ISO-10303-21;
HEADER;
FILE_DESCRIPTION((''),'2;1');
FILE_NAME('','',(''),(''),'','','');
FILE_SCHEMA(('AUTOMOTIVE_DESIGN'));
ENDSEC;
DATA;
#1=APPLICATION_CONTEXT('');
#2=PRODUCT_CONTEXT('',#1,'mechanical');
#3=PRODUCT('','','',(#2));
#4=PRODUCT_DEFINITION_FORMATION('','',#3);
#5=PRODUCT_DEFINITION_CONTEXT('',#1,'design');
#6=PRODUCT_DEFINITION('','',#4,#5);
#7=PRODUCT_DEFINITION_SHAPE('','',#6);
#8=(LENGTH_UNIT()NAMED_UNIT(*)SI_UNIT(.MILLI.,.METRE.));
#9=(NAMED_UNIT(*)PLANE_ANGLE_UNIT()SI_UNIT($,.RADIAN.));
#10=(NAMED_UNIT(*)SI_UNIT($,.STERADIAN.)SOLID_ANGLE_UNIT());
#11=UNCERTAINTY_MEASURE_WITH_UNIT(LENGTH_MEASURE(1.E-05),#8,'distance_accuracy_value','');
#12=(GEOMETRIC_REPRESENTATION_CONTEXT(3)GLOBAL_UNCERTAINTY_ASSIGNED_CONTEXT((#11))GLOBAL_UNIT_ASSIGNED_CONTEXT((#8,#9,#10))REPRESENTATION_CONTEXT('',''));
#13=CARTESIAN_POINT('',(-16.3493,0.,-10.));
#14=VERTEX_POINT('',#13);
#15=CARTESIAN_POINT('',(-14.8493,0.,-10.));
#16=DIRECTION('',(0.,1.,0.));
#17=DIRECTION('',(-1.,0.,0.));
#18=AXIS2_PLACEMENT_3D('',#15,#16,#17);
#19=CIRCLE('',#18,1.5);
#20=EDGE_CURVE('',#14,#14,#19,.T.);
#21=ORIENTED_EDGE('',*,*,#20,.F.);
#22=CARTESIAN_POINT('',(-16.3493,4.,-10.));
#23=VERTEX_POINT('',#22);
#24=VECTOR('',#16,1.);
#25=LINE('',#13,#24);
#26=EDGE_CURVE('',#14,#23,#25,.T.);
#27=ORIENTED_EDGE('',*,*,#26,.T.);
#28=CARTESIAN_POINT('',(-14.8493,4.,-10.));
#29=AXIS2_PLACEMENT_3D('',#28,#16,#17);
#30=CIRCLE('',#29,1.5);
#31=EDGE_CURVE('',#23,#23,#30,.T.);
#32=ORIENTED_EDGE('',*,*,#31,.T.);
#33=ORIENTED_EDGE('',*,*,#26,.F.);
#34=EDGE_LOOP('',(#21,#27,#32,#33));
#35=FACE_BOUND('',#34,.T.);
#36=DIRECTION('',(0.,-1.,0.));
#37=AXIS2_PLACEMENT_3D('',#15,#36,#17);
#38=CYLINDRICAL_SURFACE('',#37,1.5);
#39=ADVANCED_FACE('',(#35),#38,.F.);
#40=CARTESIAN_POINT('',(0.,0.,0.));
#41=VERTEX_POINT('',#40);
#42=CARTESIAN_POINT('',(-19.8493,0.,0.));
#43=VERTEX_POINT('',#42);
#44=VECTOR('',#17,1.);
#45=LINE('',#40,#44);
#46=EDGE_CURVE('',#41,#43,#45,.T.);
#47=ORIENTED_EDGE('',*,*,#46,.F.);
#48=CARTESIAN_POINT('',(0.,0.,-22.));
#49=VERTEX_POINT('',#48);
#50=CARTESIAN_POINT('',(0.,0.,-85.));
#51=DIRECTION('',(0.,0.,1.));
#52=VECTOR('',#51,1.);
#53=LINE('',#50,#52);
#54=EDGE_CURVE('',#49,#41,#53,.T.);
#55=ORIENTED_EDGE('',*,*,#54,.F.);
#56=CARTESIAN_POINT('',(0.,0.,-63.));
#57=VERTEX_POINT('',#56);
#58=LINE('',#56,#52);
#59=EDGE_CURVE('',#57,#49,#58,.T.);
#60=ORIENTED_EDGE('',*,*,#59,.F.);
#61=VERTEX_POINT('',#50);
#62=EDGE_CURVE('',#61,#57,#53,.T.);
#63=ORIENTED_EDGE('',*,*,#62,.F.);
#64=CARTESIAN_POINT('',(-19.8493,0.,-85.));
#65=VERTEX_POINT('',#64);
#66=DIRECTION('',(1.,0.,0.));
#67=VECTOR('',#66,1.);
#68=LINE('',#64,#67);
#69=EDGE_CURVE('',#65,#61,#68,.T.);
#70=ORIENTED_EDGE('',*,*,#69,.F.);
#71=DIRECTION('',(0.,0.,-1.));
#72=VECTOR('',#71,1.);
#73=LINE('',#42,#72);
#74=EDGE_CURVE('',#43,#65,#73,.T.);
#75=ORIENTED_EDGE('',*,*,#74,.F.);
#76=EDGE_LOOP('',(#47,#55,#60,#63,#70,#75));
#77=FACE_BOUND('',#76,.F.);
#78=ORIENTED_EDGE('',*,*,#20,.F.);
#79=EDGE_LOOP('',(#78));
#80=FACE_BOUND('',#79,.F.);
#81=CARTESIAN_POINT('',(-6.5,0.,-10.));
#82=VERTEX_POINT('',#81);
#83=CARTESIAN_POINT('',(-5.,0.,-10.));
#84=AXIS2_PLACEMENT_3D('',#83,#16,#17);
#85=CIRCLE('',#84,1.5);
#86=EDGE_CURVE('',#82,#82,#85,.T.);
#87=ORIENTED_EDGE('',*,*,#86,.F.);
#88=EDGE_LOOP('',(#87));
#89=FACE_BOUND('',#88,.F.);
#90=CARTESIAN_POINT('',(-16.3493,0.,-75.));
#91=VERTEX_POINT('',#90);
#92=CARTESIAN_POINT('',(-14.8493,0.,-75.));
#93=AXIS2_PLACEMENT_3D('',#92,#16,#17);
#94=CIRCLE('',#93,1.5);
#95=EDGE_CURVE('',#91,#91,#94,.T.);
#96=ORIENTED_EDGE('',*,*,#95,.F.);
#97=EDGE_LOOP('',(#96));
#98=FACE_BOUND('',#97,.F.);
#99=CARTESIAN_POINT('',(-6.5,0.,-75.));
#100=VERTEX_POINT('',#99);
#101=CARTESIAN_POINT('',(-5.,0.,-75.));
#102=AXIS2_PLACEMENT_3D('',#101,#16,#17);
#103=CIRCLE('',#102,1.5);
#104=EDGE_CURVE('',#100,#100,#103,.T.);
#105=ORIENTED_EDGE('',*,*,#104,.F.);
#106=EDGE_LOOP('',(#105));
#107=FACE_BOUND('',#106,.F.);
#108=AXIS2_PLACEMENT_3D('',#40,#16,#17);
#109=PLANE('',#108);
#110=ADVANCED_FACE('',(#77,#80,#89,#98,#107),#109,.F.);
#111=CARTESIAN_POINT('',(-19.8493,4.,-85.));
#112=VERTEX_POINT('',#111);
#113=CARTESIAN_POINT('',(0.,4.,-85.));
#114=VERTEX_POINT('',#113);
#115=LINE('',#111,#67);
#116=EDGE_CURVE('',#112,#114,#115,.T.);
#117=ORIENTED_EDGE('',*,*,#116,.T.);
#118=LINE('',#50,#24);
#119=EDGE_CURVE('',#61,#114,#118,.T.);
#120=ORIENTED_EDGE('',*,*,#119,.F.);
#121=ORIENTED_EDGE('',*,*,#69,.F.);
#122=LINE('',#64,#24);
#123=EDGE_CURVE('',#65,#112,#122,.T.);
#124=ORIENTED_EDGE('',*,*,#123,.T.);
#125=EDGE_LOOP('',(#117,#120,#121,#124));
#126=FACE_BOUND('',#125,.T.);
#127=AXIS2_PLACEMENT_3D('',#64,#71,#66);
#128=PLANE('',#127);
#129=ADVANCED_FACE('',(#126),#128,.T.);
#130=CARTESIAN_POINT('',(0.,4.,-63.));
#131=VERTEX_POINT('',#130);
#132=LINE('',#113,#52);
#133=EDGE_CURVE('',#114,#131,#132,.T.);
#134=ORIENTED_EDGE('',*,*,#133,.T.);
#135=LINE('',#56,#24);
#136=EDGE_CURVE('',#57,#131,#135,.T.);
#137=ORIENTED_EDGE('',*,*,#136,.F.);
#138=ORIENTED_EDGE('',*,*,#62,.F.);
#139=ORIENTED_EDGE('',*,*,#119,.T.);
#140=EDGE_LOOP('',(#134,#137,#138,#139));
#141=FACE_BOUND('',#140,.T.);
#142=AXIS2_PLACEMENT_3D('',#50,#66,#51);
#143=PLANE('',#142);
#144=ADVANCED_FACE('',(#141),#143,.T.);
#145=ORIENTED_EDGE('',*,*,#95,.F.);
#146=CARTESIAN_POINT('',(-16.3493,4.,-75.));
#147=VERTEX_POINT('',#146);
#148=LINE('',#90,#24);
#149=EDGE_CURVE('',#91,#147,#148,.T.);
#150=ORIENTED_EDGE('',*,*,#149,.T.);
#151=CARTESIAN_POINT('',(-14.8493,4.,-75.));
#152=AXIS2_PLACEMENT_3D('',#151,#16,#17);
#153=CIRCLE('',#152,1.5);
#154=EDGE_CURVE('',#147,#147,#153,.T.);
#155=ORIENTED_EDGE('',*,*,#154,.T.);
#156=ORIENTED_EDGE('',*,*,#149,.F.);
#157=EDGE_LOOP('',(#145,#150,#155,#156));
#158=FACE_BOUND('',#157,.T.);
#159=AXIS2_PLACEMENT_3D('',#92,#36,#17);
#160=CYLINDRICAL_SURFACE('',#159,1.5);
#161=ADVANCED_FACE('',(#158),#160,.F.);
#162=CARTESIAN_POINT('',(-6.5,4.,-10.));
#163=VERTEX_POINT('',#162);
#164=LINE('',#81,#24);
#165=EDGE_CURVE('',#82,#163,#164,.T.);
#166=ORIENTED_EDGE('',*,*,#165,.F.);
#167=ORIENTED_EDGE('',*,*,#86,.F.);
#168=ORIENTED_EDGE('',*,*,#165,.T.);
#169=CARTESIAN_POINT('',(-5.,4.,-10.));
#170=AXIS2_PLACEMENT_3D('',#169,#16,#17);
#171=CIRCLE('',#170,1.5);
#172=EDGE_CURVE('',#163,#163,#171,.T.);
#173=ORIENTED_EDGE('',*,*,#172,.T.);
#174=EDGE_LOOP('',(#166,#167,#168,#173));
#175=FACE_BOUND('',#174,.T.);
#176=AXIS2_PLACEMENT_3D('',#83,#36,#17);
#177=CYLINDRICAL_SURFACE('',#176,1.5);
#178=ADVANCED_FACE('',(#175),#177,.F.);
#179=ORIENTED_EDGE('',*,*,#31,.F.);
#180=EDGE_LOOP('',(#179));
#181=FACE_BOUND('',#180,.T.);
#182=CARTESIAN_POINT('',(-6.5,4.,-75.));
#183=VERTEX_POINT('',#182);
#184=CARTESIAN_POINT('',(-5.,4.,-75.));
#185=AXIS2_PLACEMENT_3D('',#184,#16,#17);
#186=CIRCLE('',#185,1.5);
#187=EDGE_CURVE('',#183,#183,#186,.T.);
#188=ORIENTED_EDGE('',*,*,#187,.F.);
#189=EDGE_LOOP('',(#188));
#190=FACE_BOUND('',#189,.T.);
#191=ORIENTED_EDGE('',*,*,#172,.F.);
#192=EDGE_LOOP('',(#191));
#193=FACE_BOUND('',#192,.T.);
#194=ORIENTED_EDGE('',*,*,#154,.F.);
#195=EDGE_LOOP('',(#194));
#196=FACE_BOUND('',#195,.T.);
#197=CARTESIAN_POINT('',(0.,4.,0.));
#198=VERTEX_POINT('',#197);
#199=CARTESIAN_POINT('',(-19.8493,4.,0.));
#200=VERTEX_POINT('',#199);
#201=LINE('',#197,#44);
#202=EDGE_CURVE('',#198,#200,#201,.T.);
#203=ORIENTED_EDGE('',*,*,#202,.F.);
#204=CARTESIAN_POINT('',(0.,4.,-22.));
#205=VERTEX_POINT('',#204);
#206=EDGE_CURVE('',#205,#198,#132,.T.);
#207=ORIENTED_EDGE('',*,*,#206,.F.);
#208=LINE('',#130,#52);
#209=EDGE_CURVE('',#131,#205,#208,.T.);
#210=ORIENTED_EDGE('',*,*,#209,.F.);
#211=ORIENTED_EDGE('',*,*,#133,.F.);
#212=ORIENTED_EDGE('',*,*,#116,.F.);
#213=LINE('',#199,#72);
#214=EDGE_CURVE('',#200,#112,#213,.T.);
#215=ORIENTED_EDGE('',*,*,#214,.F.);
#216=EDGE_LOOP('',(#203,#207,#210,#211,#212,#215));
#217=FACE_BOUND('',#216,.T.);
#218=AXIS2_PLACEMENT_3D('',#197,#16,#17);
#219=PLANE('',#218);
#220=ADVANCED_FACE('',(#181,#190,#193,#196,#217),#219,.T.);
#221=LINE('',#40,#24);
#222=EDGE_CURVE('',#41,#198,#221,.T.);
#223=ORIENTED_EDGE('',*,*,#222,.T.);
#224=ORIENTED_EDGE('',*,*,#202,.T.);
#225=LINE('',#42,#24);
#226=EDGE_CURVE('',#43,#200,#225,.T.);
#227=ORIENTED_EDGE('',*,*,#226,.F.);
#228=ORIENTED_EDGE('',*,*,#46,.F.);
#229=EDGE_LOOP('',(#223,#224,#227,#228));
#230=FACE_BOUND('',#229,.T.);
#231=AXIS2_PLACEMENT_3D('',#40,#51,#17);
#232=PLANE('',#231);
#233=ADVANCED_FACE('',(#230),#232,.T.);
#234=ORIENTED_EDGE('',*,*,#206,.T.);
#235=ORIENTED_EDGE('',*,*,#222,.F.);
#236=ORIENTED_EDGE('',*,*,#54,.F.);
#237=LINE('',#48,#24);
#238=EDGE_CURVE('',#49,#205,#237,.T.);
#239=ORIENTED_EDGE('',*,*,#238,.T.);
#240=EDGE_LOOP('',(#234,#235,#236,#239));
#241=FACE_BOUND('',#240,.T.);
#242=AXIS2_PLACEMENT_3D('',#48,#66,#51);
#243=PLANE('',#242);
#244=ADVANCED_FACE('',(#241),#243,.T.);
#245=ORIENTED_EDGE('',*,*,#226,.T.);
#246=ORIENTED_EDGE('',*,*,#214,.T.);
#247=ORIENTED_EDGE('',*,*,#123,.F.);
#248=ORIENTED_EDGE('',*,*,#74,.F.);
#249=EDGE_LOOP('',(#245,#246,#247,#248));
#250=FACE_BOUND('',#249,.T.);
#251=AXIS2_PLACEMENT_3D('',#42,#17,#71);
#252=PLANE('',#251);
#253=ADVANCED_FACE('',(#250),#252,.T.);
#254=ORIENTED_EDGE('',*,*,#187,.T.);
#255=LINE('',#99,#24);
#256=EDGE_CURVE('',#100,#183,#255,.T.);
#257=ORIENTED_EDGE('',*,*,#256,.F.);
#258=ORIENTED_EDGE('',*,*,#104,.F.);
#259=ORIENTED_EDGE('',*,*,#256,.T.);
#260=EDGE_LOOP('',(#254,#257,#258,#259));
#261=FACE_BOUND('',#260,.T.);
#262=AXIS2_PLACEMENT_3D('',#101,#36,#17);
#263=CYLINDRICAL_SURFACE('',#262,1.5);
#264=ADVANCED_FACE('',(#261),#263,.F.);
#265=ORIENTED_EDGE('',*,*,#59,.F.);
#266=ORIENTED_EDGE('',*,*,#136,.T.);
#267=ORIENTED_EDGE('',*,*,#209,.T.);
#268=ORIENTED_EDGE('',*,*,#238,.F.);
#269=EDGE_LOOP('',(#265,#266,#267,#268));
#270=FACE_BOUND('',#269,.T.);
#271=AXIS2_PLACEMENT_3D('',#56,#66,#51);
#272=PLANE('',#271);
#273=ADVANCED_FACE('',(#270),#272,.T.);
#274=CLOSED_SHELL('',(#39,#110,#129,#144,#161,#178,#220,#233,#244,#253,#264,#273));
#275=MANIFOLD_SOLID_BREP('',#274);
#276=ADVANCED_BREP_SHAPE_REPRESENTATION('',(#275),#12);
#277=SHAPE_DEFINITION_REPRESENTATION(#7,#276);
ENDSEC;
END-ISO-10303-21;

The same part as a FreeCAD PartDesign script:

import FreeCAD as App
import Part
import Sketcher

V = App.Vector


def add_polygon(sketch, points):
    """Adds a closed chain of lines whose ends are joined by coincident constraints."""
    first, n = sketch.GeometryCount, len(points)
    for a, b in zip(points, points[1:] + points[:1]):
        sketch.addGeometry(Part.LineSegment(App.Vector(*a, 0), App.Vector(*b, 0)), False)
    for i in range(n):
        sketch.addConstraint(Sketcher.Constraint("Coincident", first + i, 2, first + (i + 1) % n, 1))

doc = App.newDocument("Part")
body = doc.addObject("PartDesign::Body", "Body")

# Sketch on XZ plane
sketch1 = doc.addObject("Sketcher::SketchObject", "Sketch")
body.addObject(sketch1)
sketch1.AttachmentSupport = (doc.XZ_Plane, [""])
sketch1.MapMode = "FlatFace"
add_polygon(sketch1, [(-19.8493, 0), (0, 0), (0, -85), (-19.8493, -85)])  # lines 0-3
sketch1.addGeometry(Part.Circle(V(-5, -75, 0), V(0, 0, 1), 1.5), False)  # 4
sketch1.addGeometry(Part.Circle(V(-14.8493, -75, 0), V(0, 0, 1), 1.5), False)  # 5
sketch1.addGeometry(Part.Circle(V(-5, -10, 0), V(0, 0, 1), 1.5), False)  # 6
sketch1.addGeometry(Part.Circle(V(-14.8493, -10, 0), V(0, 0, 1), 1.5), False)  # 7
sketch1.addConstraint([
    Sketcher.Constraint("Horizontal", 0),
    Sketcher.Constraint("Vertical", 1),
    Sketcher.Constraint("Horizontal", 2),
    Sketcher.Constraint("Vertical", 3),
    Sketcher.Constraint("Coincident", 0, 2, -1, 1),
    Sketcher.Constraint("Equal", 4, 5),
    Sketcher.Constraint("Equal", 5, 6),
    Sketcher.Constraint("Equal", 6, 7),
    Sketcher.Constraint("Horizontal", 4, 3, 5, 3),
    Sketcher.Constraint("Horizontal", 6, 3, 7, 3),
    Sketcher.Constraint("Vertical", 4, 3, 6, 3),
    Sketcher.Constraint("Vertical", 5, 3, 7, 3),
    Sketcher.Constraint("Diameter", 4, 3.0),
    Sketcher.Constraint("DistanceX", 4, 3, -1, 1, 5.0),
    Sketcher.Constraint("DistanceY", 6, 3, -1, 1, 10.0),
    Sketcher.Constraint("DistanceY", 1, 2, 4, 3, 10.0),
    Sketcher.Constraint("DistanceX", 2, 2, 5, 3, 5.0),
    Sketcher.Constraint("DistanceY", 1, 2, 1, 1, 85.0),
    Sketcher.Constraint("DistanceX", 0, 1, 0, 2, 19.8493),
])
pad1 = doc.addObject("PartDesign::Pad", "Pad")
body.addObject(pad1)
pad1.Profile = sketch1
pad1.Length = 4
pad1.Reversed = True

doc.recompute()
